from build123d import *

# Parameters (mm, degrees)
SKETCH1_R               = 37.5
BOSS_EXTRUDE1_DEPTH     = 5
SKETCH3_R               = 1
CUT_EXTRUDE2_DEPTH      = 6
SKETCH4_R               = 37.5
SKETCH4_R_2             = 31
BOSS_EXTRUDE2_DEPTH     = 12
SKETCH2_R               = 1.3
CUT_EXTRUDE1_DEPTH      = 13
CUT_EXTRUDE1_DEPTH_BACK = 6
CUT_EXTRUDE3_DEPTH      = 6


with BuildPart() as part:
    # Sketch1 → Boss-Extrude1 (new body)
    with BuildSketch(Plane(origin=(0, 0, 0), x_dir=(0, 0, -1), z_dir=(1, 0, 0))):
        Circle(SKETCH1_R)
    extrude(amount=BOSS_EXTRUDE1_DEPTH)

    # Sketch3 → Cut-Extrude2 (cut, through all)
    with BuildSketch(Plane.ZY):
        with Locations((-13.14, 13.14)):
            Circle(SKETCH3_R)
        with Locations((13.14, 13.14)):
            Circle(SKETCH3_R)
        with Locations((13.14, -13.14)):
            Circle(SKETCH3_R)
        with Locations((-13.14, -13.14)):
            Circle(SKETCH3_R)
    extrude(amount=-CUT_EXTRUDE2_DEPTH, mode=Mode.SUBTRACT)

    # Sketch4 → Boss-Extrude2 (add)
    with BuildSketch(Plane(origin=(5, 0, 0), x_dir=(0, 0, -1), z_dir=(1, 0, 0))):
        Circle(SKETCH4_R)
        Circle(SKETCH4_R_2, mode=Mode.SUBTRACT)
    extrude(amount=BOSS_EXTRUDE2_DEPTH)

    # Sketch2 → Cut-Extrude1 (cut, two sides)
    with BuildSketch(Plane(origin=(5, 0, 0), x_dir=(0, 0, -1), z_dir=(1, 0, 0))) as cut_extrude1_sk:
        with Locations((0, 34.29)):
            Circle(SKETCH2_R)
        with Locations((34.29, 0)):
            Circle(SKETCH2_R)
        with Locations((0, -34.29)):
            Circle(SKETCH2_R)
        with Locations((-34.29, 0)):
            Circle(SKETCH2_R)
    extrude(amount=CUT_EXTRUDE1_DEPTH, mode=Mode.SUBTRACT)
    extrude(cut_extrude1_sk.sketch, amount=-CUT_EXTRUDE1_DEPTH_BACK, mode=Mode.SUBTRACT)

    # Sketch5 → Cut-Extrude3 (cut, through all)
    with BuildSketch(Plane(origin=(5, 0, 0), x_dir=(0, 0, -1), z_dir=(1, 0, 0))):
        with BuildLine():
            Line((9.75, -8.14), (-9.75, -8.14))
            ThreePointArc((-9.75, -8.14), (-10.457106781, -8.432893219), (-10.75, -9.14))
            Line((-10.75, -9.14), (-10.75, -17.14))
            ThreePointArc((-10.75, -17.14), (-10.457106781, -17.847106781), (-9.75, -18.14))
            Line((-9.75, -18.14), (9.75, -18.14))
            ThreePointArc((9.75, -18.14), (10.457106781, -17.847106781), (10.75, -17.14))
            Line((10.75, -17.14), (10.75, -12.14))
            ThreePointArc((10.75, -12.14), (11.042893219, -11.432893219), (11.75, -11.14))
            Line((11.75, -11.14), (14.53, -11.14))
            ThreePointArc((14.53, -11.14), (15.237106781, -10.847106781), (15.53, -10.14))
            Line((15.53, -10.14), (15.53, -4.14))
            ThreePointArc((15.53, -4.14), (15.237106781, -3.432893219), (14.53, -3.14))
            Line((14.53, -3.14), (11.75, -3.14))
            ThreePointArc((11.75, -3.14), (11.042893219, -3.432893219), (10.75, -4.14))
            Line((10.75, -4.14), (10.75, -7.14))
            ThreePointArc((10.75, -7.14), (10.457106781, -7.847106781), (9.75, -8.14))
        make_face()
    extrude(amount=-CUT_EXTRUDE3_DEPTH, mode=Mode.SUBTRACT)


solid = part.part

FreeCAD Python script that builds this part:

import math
import FreeCAD as App
import Part
import Sketcher

doc = App.newDocument("Part")
body = doc.addObject("PartDesign::Body", "Body")

# Sketch on YZ plane
sketch1 = body.newObject("Sketcher::SketchObject", "Sketch")
sketch1.AttachmentSupport = (doc.getObject("YZ_Plane"), [""])
sketch1.MapMode = "FlatFace"
sketch1.addGeometry(Part.Circle(App.Vector(0, 0, 0), App.Vector(0, 0, 1), 37.5), False)
sketch1.addConstraint(Sketcher.Constraint("Coincident", 0, 3, -1, 1))
sketch1.addConstraint(Sketcher.Constraint("Diameter", 0, 75.0))
pad1 = body.newObject("PartDesign::Pad", "Pad")
pad1.Profile = sketch1
pad1.Length = 5

# Sketch on YZ plane
sketch2 = body.newObject("Sketcher::SketchObject", "Sketch001")
sketch2.AttachmentSupport = (doc.getObject("YZ_Plane"), [""])
sketch2.MapMode = "FlatFace"
sketch2.addGeometry(Part.Circle(App.Vector(13.14, -13.14, 0), App.Vector(0, 0, 1), 1), False)
sketch2.addGeometry(Part.Circle(App.Vector(13.14, 13.14, 0), App.Vector(0, 0, 1), 1), False)
sketch2.addGeometry(Part.Circle(App.Vector(-13.14, 13.14, 0), App.Vector(0, 0, 1), 1), False)
sketch2.addGeometry(Part.Circle(App.Vector(-13.14, -13.14, 0), App.Vector(0, 0, 1), 1), False)
sketch2.addConstraint(Sketcher.Constraint("Equal", 0, 1))
sketch2.addConstraint(Sketcher.Constraint("Equal", 1, 2))
sketch2.addConstraint(Sketcher.Constraint("Equal", 2, 3))
sketch2.addConstraint(Sketcher.Constraint("Symmetric", 0, 3, 2, 3, -1, 1))
sketch2.addConstraint(Sketcher.Constraint("Symmetric", 1, 3, 3, 3, -1, 1))
sketch2.addConstraint(Sketcher.Constraint("Symmetric", 1, 3, 2, 3, -2))
sketch2.addConstraint(Sketcher.Constraint("Diameter", 0, 2.0))
sketch2.addConstraint(Sketcher.Constraint("DistanceX", -1, 1, 0, 3, 13.14))
sketch2.addConstraint(Sketcher.Constraint("DistanceY", 0, 3, -1, 1, 13.14))
pocket1 = body.newObject("PartDesign::Pocket", "Pocket")
pocket1.Profile = sketch2
pocket1.Type = "ThroughAll"
pocket1.Reversed = True

# Sketch on YZ plane
sketch3 = body.newObject("Sketcher::SketchObject", "Sketch002")
sketch3.AttachmentSupport = (doc.getObject("YZ_Plane"), [""])
sketch3.MapMode = "FlatFace"
sketch3.AttachmentOffset = App.Placement(App.Vector(0, 0, 5), App.Rotation())
sketch3.addGeometry(Part.Circle(App.Vector(0, 0, 0), App.Vector(0, 0, 1), 37.5), False)
sketch3.addGeometry(Part.Circle(App.Vector(0, 0, 0), App.Vector(0, 0, 1), 31), False)
sketch3.addConstraint(Sketcher.Constraint("Coincident", 0, 3, -1, 1))
sketch3.addConstraint(Sketcher.Constraint("Coincident", 1, 3, -1, 1))
sketch3.addConstraint(Sketcher.Constraint("Diameter", 0, 75.0))
sketch3.addConstraint(Sketcher.Constraint("Diameter", 1, 62.0))
pad2 = body.newObject("PartDesign::Pad", "Pad001")
pad2.Profile = sketch3
pad2.Length = 12

# Sketch on YZ plane
sketch4 = body.newObject("Sketcher::SketchObject", "Sketch003")
sketch4.AttachmentSupport = (doc.getObject("YZ_Plane"), [""])
sketch4.MapMode = "FlatFace"
sketch4.AttachmentOffset = App.Placement(App.Vector(0, 0, 5), App.Rotation())
sketch4.addGeometry(Part.Circle(App.Vector(34.29, 0, 0), App.Vector(0, 0, 1), 1.3), False)
sketch4.addGeometry(Part.Circle(App.Vector(0, -34.29, 0), App.Vector(0, 0, 1), 1.3), False)
sketch4.addGeometry(Part.Circle(App.Vector(-34.29, 0, 0), App.Vector(0, 0, 1), 1.3), False)
sketch4.addGeometry(Part.Circle(App.Vector(0, 34.29, 0), App.Vector(0, 0, 1), 1.3), False)
sketch4.addConstraint(Sketcher.Constraint("Equal", 0, 1))
sketch4.addConstraint(Sketcher.Constraint("Equal", 1, 2))
sketch4.addConstraint(Sketcher.Constraint("Equal", 2, 3))
sketch4.addConstraint(Sketcher.Constraint("Symmetric", 0, 3, 2, 3, -1, 1))
sketch4.addConstraint(Sketcher.Constraint("Symmetric", 1, 3, 3, 3, -1, 1))
sketch4.addConstraint(Sketcher.Constraint("PointOnObject", 0, 3, -1))
sketch4.addConstraint(Sketcher.Constraint("PointOnObject", 1, 3, -2))
sketch4.addConstraint(Sketcher.Constraint("Diameter", 0, 2.6))
sketch4.addConstraint(Sketcher.Constraint("DistanceX", -1, 1, 0, 3, 34.29))
sketch4.addConstraint(Sketcher.Constraint("DistanceY", 1, 3, -1, 1, 34.29))
pocket2 = body.newObject("PartDesign::Pocket", "Pocket001")
pocket2.Profile = sketch4
pocket2.Type = "ThroughAll"
pocket2.Midplane = True

# Sketch on YZ plane
sketch5 = body.newObject("Sketcher::SketchObject", "Sketch004")
sketch5.AttachmentSupport = (doc.getObject("YZ_Plane"), [""])
sketch5.MapMode = "FlatFace"
sketch5.AttachmentOffset = App.Placement(App.Vector(0, 0, 5), App.Rotation())
sketch5.addGeometry(Part.LineSegment(App.Vector(-8.14, -9.75, 0), App.Vector(-8.14, 9.75, 0)), False)
sketch5.addGeometry(Part.ArcOfCircle(Part.Circle(App.Vector(-9.14, 9.75, 0), App.Vector(0, 0, 1), 1), math.radians(0), math.radians(90)), False)
sketch5.addGeometry(Part.LineSegment(App.Vector(-9.14, 10.75, 0), App.Vector(-17.14, 10.75, 0)), False)
sketch5.addGeometry(Part.ArcOfCircle(Part.Circle(App.Vector(-17.14, 9.75, 0), App.Vector(0, 0, 1), 1), math.radians(90), math.radians(180)), False)
sketch5.addGeometry(Part.LineSegment(App.Vector(-18.14, 9.75, 0), App.Vector(-18.14, -9.75, 0)), False)
sketch5.addGeometry(Part.ArcOfCircle(Part.Circle(App.Vector(-17.14, -9.75, 0), App.Vector(0, 0, 1), 1), math.radians(-180), math.radians(-90)), False)
sketch5.addGeometry(Part.LineSegment(App.Vector(-17.14, -10.75, 0), App.Vector(-12.14, -10.75, 0)), False)
sketch5.addGeometry(Part.ArcOfCircle(Part.Circle(App.Vector(-12.14, -11.75, 0), App.Vector(0, 0, 1), 1), math.radians(0), math.radians(90)), False)
sketch5.addGeometry(Part.LineSegment(App.Vector(-11.14, -11.75, 0), App.Vector(-11.14, -14.53, 0)), False)
sketch5.addGeometry(Part.ArcOfCircle(Part.Circle(App.Vector(-10.14, -14.53, 0), App.Vector(0, 0, 1), 1), math.radians(-180), math.radians(-90)), False)
sketch5.addGeometry(Part.LineSegment(App.Vector(-10.14, -15.53, 0), App.Vector(-4.14, -15.53, 0)), False)
sketch5.addGeometry(Part.ArcOfCircle(Part.Circle(App.Vector(-4.14, -14.53, 0), App.Vector(0, 0, 1), 1), math.radians(-90), math.radians(0)), False)
sketch5.addGeometry(Part.LineSegment(App.Vector(-3.14, -14.53, 0), App.Vector(-3.14, -11.75, 0)), False)
sketch5.addGeometry(Part.ArcOfCircle(Part.Circle(App.Vector(-4.14, -11.75, 0), App.Vector(0, 0, 1), 1), math.radians(0), math.radians(90)), False)
sketch5.addGeometry(Part.LineSegment(App.Vector(-4.14, -10.75, 0), App.Vector(-7.14, -10.75, 0)), False)
sketch5.addGeometry(Part.ArcOfCircle(Part.Circle(App.Vector(-7.14, -9.75, 0), App.Vector(0, 0, 1), 1), math.radians(-180), math.radians(-90)), False)
sketch5.addConstraint(Sketcher.Constraint("Tangent", 0, 2, 1, 1))
sketch5.addConstraint(Sketcher.Constraint("Tangent", 1, 2, 2, 1))
sketch5.addConstraint(Sketcher.Constraint("Tangent", 2, 2, 3, 1))
sketch5.addConstraint(Sketcher.Constraint("Tangent", 3, 2, 4, 1))
sketch5.addConstraint(Sketcher.Constraint("Tangent", 4, 2, 5, 1))
sketch5.addConstraint(Sketcher.Constraint("Tangent", 5, 2, 6, 1))
sketch5.addConstraint(Sketcher.Constraint("Tangent", 6, 2, 7, 2))
sketch5.addConstraint(Sketcher.Constraint("Tangent", 7, 1, 8, 1))
sketch5.addConstraint(Sketcher.Constraint("Tangent", 8, 2, 9, 1))
sketch5.addConstraint(Sketcher.Constraint("Tangent", 9, 2, 10, 1))
sketch5.addConstraint(Sketcher.Constraint("Tangent", 10, 2, 11, 1))
sketch5.addConstraint(Sketcher.Constraint("Tangent", 11, 2, 12, 1))
sketch5.addConstraint(Sketcher.Constraint("Tangent", 12, 2, 13, 1))
sketch5.addConstraint(Sketcher.Constraint("Tangent", 13, 2, 14, 1))
sketch5.addConstraint(Sketcher.Constraint("Tangent", 14, 2, 15, 2))
sketch5.addConstraint(Sketcher.Constraint("Tangent", 15, 1, 0, 1))
sketch5.addConstraint(Sketcher.Constraint("Vertical", 0))
sketch5.addConstraint(Sketcher.Constraint("Horizontal", 2))
sketch5.addConstraint(Sketcher.Constraint("Vertical", 4))
sketch5.addConstraint(Sketcher.Constraint("Horizontal", 6))
sketch5.addConstraint(Sketcher.Constraint("Vertical", 8))
sketch5.addConstraint(Sketcher.Constraint("Horizontal", 10))
sketch5.addConstraint(Sketcher.Constraint("Vertical", 12))
sketch5.addConstraint(Sketcher.Constraint("Horizontal", 14))
sketch5.addConstraint(Sketcher.Constraint("Equal", 1, 3))
sketch5.addConstraint(Sketcher.Constraint("Equal", 3, 5))
sketch5.addConstraint(Sketcher.Constraint("Equal", 5, 7))
sketch5.addConstraint(Sketcher.Constraint("Equal", 7, 9))
sketch5.addConstraint(Sketcher.Constraint("Equal", 9, 11))
sketch5.addConstraint(Sketcher.Constraint("Equal", 11, 13))
sketch5.addConstraint(Sketcher.Constraint("Equal", 13, 15))
sketch5.addConstraint(Sketcher.Constraint("Horizontal", 7, 3, 13, 3))
sketch5.addConstraint(Sketcher.Constraint("Radius", 1, 1.0))
sketch5.addConstraint(Sketcher.Constraint("DistanceX", 2, 2, 2, 1, 8.0))
sketch5.addConstraint(Sketcher.Constraint("DistanceX", 6, 1, 6, 2, 5.0))
sketch5.addConstraint(Sketcher.Constraint("DistanceX", 10, 1, 10, 2, 6.0))
sketch5.addConstraint(Sketcher.Constraint("DistanceY", 0, 1, 0, 2, 19.5))
sketch5.addConstraint(Sketcher.Constraint("DistanceY", 8, 2, 8, 1, 2.78))
sketch5.addConstraint(Sketcher.Constraint("DistanceX", 1, 3, -1, 1, 9.14))
sketch5.addConstraint(Sketcher.Constraint("DistanceY", -1, 1, 1, 3, 9.75))
pocket3 = body.newObject("PartDesign::Pocket", "Pocket002")
pocket3.Profile = sketch5
pocket3.Type = "ThroughAll"

doc.recompute()
